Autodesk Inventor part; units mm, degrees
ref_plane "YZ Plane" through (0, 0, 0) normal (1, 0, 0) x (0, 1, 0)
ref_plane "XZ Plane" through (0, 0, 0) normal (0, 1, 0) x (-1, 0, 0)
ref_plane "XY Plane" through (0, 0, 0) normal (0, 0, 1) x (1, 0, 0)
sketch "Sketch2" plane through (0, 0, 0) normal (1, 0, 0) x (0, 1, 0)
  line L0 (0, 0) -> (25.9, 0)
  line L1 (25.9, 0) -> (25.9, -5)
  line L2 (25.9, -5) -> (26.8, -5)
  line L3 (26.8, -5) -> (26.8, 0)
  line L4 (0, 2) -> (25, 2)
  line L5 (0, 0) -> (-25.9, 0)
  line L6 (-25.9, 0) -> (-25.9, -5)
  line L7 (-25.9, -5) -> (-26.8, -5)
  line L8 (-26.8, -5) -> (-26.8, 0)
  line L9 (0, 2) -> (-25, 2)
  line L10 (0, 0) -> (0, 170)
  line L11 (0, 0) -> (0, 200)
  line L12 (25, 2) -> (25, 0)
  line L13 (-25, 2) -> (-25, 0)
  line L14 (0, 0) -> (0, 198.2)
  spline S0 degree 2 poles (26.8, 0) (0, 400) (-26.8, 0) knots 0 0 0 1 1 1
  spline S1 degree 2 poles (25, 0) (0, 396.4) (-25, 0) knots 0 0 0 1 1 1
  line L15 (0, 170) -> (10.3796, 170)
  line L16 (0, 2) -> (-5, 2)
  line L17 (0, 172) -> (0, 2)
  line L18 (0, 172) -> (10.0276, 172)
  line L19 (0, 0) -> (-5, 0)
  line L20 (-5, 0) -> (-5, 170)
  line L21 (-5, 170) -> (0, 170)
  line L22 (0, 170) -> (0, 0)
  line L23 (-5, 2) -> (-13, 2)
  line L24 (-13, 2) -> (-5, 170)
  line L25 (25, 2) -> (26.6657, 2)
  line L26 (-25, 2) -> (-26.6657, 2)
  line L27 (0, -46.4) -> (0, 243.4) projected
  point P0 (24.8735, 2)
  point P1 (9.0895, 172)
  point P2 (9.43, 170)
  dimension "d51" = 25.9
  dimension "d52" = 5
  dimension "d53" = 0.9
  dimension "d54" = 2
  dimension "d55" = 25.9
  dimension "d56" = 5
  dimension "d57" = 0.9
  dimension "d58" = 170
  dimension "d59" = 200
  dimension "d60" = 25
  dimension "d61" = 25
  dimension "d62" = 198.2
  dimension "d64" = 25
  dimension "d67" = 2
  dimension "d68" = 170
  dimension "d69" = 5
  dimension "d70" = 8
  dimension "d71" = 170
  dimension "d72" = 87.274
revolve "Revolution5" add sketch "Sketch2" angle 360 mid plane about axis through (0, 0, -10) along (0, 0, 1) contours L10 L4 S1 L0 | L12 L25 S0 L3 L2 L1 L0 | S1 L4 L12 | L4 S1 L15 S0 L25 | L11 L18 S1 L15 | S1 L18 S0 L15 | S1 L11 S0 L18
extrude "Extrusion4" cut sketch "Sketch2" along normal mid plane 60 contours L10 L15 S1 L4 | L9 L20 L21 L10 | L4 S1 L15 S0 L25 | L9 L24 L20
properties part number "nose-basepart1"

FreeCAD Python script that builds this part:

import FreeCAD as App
import Part
import Sketcher

V = App.Vector

doc = App.newDocument("Part")
params = doc.addObject("Spreadsheet::Sheet", "Params")
for row, (alias, value) in enumerate([
    ("sketch1_height", "5 mm"),
    ("sketch1_width", "25.9 mm"),
    ("revolution_angle", "360 deg"),
    ("pocket1_length", "60 mm"),
], start=1):
    params.set(f"A{row}", alias)
    params.set(f"B{row}", "=" + value)
    params.setAlias(f"B{row}", alias)

body = doc.addObject("PartDesign::Body", "Body")

# Sketch on YZ plane
sketch1 = body.newObject("Sketcher::SketchObject", "Sketch")
sketch1.AttachmentSupport = (doc.getObject("YZ_Plane"), [""])
sketch1.MapMode = "FlatFace"
sketch1.addGeometry([
    Part.LineSegment(V(0, 2, 0), V(0, 0, 0)),  # 0
    Part.LineSegment(V(0, 0, 0), V(25.9, 0, 0)),  # 1
    Part.LineSegment(V(25.9, 0, 0), V(25.9, -5, 0)),  # 2
    Part.LineSegment(V(25.9, -5, 0), V(26.8, -5, 0)),  # 3
    Part.LineSegment(V(26.8, -5, 0), V(26.8, 0, 0)),  # 4
    Part.BSplineCurve([V(26.8, 0, 0), V(26.732832, 1.002511, 0), V(26.665663, 1.999998, 0)], [3, 3], [0, 0.002506278], False, 2, [1, 1, 1], False),  # 5
    Part.BSplineCurve([V(26.665663, 1.999998, 0), V(18.522629, 122.928603, 0), V(10.379596, 169.999999, 0)], [3, 3], [0.002506278, 0.30635083], False, 2, [1, 1, 1], False),  # 6
    Part.BSplineCurve([V(10.379596, 169.999999, 0), V(10.203618, 171.01725, 0), V(10.02764, 172.000007, 0)], [3, 3], [0.30635083, 0.312917155], False, 2, [1, 1, 1], False),  # 7
    Part.BSplineCurve([V(10.02764, 172.000007, 0), V(5.01382, 200, 0), V(0, 200, 0)], [3, 3], [0.312917155, 0.5], False, 2, [1, 1, 1], False),  # 8
    Part.LineSegment(V(0, 200, 0), V(0, 198.2, 0)),  # 9
    Part.BSplineCurve([V(9.089476, 172, 0), V(4.544738, 198.2, 0), V(0, 198.2, 0)], [3, 3], [0.318210488, 0.5], False, 2, [1, 1, 1], False),  # 10
    Part.LineSegment(V(9.089476, 172, 0), V(0, 172, 0)),  # 11
    Part.LineSegment(V(0, 172, 0), V(0, 170, 0)),  # 12
    Part.LineSegment(V(0, 170, 0), V(9.430023, 170, 0)),  # 13
    Part.BSplineCurve([V(24.873545, 2, 0), V(17.151784, 123.816937, 0), V(9.430023, 170, 0)], [3, 3], [0.002529101, 0.311399546], False, 2, [1, 1, 1], False),  # 14
    Part.LineSegment(V(24.873545, 2, 0), V(0, 2, 0)),  # 15
], False)
sketch1.addConstraint([
    Sketcher.Constraint("Block", 5),
    Sketcher.Constraint("Block", 6),
    Sketcher.Constraint("Block", 7),
    Sketcher.Constraint("Block", 8),
    Sketcher.Constraint("Block", 10),
    Sketcher.Constraint("Block", 14),
    Sketcher.Constraint("Coincident", 0, 2, 1, 1),
    Sketcher.Constraint("Coincident", 1, 2, 2, 1),
    Sketcher.Constraint("Coincident", 2, 2, 3, 1),
    Sketcher.Constraint("Coincident", 3, 2, 4, 1),
    Sketcher.Constraint("Coincident", 4, 2, 5, 1),
    Sketcher.Constraint("Coincident", 8, 2, 9, 1),
    Sketcher.Constraint("Coincident", 9, 2, 10, 2),
    Sketcher.Constraint("Coincident", 10, 1, 11, 1),
    Sketcher.Constraint("Coincident", 11, 2, 12, 1),
    Sketcher.Constraint("Coincident", 12, 2, 13, 1),
    Sketcher.Constraint("Coincident", 13, 2, 14, 2),
    Sketcher.Constraint("Coincident", 14, 1, 15, 1),
    Sketcher.Constraint("Coincident", 15, 2, 0, 1),
    Sketcher.Constraint("Vertical", 0),
    Sketcher.Constraint("Horizontal", 1),
    Sketcher.Constraint("Vertical", 2),
    Sketcher.Constraint("Horizontal", 3),
    Sketcher.Constraint("Vertical", 4),
    Sketcher.Constraint("Horizontal", 11),
    Sketcher.Constraint("Vertical", 12),
    Sketcher.Constraint("Horizontal", 13),
    Sketcher.Constraint("Horizontal", 15),
    Sketcher.Constraint("Coincident", 0, 2, -1, 1),
    Sketcher.Constraint("PointOnObject", 11, 2, -2),
    Sketcher.Constraint("DistanceY", 2, 2, 2, 1, 5.0),
    Sketcher.Constraint("DistanceX", 1, 1, 1, 2, 25.9),
])
sketch1.setExpression("Constraints[30]", "Params.sketch1_height")
sketch1.setExpression("Constraints[31]", "Params.sketch1_width")
revolution = body.newObject("PartDesign::Revolution", "Revolution")
revolution.Profile = sketch1
revolution.ReferenceAxis = (sketch1, ["V_Axis"])
revolution.setExpression("Angle", "Params.revolution_angle")

# Sketch on YZ plane
sketch2 = body.newObject("Sketcher::SketchObject", "Sketch001")
sketch2.AttachmentSupport = (doc.getObject("YZ_Plane"), [""])
sketch2.MapMode = "FlatFace"
sketch2.addGeometry([
    Part.LineSegment(V(-5, 170, 0), V(-13, 2, 0)),
    Part.LineSegment(V(-13, 2, 0), V(26.6657, 2, 0)),
    Part.BSplineCurve([V(26.665663, 1.999998, 0), V(18.522629, 122.928603, 0), V(10.379596, 169.999999, 0)], [3, 3], [0.002506278, 0.30635083], False, 2, [1, 1, 1], False),
    Part.LineSegment(V(10.3796, 170, 0), V(-5, 170, 0)),
], False)
sketch2.addConstraint([
    Sketcher.Constraint("Block", 2),
    Sketcher.Constraint("Coincident", 0, 2, 1, 1),
    Sketcher.Constraint("Coincident", 1, 2, 2, 1),
    Sketcher.Constraint("Coincident", 2, 2, 3, 1),
    Sketcher.Constraint("Coincident", 3, 2, 0, 1),
    Sketcher.Constraint("Horizontal", 1),
    Sketcher.Constraint("Horizontal", 3),
    Sketcher.Constraint("DistanceX", 3, 2, -1, 1, 5.0),
    Sketcher.Constraint("DistanceX", 0, 2, 3, 2, 8.0),
])
pocket1 = body.newObject("PartDesign::Pocket", "Pocket")
pocket1.Profile = sketch2
pocket1.setExpression("Length", "Params.pocket1_length")
pocket1.Midplane = True

doc.recompute()
